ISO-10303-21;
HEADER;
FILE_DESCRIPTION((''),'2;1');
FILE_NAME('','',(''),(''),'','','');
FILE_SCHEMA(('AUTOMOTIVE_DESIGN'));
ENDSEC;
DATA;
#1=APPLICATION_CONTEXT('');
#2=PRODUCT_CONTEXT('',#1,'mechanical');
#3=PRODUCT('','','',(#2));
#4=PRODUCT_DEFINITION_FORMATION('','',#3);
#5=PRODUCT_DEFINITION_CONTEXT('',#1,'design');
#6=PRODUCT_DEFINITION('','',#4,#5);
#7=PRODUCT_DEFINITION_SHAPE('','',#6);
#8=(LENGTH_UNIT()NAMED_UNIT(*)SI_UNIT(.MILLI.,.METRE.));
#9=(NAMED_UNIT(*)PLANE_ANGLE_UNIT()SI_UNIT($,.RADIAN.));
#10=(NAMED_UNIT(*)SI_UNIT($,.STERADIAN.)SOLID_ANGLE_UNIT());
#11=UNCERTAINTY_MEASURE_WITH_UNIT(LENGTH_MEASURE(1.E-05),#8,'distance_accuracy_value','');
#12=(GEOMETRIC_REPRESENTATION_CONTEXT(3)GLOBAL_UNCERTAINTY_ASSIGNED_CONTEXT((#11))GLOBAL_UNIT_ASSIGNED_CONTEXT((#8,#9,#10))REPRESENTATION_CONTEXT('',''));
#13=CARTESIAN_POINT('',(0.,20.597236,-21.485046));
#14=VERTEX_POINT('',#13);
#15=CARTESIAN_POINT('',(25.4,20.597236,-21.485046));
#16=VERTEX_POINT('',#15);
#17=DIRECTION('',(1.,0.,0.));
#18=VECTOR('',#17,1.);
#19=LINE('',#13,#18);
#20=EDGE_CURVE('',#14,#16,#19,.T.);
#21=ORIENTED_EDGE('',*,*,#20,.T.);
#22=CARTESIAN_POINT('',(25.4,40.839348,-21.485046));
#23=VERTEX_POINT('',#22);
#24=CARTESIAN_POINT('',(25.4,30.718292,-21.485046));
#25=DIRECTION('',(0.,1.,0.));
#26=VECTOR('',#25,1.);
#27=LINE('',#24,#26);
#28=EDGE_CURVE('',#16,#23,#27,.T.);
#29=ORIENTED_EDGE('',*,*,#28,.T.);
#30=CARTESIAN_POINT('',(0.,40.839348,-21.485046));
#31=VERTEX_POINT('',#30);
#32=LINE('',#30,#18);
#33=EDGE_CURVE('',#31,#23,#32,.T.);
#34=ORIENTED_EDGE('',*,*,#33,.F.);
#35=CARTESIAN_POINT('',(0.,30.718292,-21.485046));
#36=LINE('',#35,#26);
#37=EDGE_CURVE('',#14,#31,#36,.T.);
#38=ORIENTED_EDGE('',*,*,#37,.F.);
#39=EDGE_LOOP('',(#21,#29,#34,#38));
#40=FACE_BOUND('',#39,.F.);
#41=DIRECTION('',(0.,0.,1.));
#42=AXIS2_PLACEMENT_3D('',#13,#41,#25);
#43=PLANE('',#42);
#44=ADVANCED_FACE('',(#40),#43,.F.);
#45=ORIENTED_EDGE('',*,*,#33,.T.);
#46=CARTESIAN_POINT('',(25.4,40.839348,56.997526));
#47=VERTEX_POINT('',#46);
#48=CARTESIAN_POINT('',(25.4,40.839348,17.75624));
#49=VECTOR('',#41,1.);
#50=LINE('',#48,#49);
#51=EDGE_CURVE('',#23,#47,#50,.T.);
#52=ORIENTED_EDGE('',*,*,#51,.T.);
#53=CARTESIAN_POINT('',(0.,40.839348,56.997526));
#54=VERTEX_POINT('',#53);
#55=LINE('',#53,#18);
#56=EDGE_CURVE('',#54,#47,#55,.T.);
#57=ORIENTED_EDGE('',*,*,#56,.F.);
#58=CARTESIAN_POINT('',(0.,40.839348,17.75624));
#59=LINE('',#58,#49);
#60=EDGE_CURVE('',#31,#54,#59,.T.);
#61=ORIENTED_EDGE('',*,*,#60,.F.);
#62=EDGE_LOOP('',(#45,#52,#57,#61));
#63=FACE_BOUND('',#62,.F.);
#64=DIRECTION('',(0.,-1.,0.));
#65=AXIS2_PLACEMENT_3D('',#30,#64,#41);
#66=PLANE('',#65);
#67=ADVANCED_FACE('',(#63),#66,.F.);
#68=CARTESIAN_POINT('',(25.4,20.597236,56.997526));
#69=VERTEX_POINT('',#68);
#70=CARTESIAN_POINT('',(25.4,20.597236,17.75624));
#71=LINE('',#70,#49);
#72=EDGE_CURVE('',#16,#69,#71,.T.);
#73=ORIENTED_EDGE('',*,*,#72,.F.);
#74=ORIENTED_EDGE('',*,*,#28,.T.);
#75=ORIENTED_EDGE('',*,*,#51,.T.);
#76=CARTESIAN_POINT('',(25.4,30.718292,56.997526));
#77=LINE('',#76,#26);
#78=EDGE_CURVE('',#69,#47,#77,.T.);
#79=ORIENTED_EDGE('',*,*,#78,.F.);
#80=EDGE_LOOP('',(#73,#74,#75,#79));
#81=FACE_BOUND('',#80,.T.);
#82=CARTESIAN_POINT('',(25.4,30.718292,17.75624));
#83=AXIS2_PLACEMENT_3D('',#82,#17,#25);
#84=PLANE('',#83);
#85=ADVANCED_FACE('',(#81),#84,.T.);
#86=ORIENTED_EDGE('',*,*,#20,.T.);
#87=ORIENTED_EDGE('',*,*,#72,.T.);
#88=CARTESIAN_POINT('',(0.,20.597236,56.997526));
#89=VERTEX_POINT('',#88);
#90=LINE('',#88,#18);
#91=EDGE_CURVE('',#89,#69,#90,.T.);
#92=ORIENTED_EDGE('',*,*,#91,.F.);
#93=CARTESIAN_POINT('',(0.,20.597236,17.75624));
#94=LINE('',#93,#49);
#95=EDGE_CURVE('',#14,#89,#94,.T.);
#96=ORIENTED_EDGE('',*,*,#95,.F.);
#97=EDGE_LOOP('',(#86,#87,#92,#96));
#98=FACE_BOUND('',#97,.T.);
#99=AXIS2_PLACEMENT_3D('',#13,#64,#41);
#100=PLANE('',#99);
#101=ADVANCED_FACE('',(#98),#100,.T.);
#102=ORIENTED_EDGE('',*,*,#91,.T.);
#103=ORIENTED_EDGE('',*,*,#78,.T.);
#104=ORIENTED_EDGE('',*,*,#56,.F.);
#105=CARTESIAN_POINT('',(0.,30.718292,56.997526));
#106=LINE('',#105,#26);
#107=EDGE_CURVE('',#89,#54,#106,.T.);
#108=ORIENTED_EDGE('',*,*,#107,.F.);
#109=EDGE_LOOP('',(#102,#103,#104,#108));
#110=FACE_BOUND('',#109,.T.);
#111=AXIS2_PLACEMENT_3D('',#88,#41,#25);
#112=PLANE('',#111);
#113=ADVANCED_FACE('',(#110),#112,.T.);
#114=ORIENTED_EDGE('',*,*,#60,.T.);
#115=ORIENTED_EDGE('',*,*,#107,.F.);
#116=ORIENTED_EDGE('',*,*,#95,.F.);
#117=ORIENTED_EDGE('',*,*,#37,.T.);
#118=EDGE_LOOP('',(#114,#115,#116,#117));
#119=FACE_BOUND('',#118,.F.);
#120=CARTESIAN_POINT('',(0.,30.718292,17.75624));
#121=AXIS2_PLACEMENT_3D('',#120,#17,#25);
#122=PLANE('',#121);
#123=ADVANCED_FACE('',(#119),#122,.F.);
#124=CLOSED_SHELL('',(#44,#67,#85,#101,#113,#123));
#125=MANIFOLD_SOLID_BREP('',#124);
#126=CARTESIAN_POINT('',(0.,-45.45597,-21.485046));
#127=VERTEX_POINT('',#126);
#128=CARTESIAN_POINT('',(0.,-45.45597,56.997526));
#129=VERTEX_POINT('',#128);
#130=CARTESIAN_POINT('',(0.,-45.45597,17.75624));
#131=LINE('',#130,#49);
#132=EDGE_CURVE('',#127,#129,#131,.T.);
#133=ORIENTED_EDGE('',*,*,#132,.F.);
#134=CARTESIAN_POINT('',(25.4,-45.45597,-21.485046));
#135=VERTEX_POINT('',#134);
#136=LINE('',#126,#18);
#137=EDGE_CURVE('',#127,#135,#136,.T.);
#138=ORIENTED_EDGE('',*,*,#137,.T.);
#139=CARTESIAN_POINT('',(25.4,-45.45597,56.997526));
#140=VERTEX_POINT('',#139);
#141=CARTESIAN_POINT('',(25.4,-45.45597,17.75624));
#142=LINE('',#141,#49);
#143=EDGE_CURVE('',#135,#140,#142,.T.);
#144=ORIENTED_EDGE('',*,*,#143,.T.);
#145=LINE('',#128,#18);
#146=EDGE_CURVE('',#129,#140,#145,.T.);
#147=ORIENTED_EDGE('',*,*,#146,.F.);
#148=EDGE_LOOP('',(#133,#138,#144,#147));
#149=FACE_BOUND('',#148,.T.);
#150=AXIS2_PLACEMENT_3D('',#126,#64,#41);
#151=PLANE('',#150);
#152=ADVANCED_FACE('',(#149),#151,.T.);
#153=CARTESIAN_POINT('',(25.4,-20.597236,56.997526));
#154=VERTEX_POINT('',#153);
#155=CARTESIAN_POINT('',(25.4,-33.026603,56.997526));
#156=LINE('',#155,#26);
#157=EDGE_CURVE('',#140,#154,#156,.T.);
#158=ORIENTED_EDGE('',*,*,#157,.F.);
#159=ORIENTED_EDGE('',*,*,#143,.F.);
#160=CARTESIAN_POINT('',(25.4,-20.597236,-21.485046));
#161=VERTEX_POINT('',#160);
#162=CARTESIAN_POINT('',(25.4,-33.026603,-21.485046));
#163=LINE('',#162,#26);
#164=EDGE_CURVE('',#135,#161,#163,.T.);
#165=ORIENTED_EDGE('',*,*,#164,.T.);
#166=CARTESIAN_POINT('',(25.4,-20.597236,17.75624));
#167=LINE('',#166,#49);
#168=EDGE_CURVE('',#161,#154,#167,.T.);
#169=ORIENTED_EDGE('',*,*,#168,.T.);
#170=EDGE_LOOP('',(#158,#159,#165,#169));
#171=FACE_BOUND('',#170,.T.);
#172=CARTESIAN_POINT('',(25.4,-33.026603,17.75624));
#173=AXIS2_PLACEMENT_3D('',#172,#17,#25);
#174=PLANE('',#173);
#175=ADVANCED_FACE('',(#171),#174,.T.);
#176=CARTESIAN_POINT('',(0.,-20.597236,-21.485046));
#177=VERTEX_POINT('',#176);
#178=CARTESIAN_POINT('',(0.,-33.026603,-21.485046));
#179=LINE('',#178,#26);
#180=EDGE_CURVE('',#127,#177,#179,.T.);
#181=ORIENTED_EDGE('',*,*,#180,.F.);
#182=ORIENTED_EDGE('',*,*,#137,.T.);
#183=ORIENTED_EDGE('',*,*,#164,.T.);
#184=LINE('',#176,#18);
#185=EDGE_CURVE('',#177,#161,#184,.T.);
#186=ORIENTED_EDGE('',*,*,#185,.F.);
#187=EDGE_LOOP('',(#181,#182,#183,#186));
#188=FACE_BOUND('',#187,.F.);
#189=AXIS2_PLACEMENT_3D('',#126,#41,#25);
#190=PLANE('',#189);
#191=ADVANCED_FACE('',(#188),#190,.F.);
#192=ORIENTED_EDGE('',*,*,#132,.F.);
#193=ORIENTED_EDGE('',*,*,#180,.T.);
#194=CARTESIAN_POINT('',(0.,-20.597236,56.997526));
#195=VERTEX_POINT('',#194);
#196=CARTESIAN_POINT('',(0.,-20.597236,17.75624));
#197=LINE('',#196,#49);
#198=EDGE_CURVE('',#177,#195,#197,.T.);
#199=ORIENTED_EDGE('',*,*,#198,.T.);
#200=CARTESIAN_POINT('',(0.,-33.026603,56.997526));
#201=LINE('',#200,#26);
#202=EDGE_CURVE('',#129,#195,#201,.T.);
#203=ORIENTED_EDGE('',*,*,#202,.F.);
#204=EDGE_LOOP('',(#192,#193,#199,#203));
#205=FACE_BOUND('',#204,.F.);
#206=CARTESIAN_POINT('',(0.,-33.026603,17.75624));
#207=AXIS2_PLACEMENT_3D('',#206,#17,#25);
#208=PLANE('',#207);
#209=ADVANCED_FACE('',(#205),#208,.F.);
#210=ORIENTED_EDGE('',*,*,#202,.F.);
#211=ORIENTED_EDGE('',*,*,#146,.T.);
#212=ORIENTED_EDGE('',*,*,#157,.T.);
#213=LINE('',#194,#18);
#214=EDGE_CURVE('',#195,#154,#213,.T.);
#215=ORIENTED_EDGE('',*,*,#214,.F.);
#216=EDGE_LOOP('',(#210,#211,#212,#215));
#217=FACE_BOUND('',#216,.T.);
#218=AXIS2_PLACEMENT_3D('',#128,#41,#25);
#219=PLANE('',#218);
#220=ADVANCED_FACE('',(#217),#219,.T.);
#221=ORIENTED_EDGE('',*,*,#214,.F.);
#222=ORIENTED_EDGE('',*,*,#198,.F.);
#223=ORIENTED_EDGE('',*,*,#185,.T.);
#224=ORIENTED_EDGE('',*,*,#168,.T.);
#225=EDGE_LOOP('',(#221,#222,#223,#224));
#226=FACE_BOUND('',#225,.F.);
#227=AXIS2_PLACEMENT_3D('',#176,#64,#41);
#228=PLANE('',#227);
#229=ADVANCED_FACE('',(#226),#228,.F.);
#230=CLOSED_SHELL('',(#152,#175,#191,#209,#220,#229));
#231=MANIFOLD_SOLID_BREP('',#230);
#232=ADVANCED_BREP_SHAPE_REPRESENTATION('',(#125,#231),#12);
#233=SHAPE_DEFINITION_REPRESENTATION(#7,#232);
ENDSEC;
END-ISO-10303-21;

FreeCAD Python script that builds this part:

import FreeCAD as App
import Part
import Sketcher

V = App.Vector
Q = App.Units.Quantity


def add_polygon(sketch, points):
    """Adds a closed chain of lines whose ends are joined by coincident constraints."""
    first, n = sketch.GeometryCount, len(points)
    for a, b in zip(points, points[1:] + points[:1]):
        sketch.addGeometry(Part.LineSegment(App.Vector(*a, 0), App.Vector(*b, 0)), False)
    for i in range(n):
        sketch.addConstraint(Sketcher.Constraint("Coincident", first + i, 2, first + (i + 1) % n, 1))

doc = App.newDocument("Part")
body = doc.addObject("PartDesign::Body", "Body")
body.AllowCompound = True

# Sketch on YZ plane
sketch1 = doc.addObject("Sketcher::SketchObject", "Sketch")
body.addObject(sketch1)
sketch1.AttachmentSupport = (doc.YZ_Plane, [""])
sketch1.MapMode = "FlatFace"
add_polygon(sketch1, [(-45, 57), (-45, -21), (-21, -21), (-21, 57)])  # lines 0-3
add_polygon(sketch1, [(21, 57), (21, -21), (41, -21), (41, 57)])  # lines 4-7
sketch1.addConstraint([
    Sketcher.Constraint("Vertical", 0),
    Sketcher.Constraint("Horizontal", 1),
    Sketcher.Constraint("Vertical", 2),
    Sketcher.Constraint("Horizontal", 3),
    Sketcher.Constraint("Vertical", 4),
    Sketcher.Constraint("Horizontal", 5),
    Sketcher.Constraint("Vertical", 6),
    Sketcher.Constraint("Horizontal", 7),
    Sketcher.Constraint("Symmetric", 1, 2, 4, 2, -2),
    Sketcher.Constraint("Horizontal", 3, 2, 6, 2),
    Sketcher.Constraint("DistanceX", 1, 1, 1, 2, Q("24.858734 mm")),
    Sketcher.Constraint("DistanceX", 5, 1, 5, 2, Q("20.242112 mm")),
    Sketcher.Constraint("DistanceY", 0, 2, 0, 1, Q("78.482572 mm")),
    Sketcher.Constraint("DistanceX", 0, 2, -1, 1, Q("45.45597 mm")),
    Sketcher.Constraint("DistanceY", 0, 2, -1, 1, Q("21.485046 mm")),
])
pad1 = doc.addObject("PartDesign::Pad", "Pad")
body.addObject(pad1)
pad1.Profile = sketch1
pad1.Length = Q("1 in")

doc.recompute()
